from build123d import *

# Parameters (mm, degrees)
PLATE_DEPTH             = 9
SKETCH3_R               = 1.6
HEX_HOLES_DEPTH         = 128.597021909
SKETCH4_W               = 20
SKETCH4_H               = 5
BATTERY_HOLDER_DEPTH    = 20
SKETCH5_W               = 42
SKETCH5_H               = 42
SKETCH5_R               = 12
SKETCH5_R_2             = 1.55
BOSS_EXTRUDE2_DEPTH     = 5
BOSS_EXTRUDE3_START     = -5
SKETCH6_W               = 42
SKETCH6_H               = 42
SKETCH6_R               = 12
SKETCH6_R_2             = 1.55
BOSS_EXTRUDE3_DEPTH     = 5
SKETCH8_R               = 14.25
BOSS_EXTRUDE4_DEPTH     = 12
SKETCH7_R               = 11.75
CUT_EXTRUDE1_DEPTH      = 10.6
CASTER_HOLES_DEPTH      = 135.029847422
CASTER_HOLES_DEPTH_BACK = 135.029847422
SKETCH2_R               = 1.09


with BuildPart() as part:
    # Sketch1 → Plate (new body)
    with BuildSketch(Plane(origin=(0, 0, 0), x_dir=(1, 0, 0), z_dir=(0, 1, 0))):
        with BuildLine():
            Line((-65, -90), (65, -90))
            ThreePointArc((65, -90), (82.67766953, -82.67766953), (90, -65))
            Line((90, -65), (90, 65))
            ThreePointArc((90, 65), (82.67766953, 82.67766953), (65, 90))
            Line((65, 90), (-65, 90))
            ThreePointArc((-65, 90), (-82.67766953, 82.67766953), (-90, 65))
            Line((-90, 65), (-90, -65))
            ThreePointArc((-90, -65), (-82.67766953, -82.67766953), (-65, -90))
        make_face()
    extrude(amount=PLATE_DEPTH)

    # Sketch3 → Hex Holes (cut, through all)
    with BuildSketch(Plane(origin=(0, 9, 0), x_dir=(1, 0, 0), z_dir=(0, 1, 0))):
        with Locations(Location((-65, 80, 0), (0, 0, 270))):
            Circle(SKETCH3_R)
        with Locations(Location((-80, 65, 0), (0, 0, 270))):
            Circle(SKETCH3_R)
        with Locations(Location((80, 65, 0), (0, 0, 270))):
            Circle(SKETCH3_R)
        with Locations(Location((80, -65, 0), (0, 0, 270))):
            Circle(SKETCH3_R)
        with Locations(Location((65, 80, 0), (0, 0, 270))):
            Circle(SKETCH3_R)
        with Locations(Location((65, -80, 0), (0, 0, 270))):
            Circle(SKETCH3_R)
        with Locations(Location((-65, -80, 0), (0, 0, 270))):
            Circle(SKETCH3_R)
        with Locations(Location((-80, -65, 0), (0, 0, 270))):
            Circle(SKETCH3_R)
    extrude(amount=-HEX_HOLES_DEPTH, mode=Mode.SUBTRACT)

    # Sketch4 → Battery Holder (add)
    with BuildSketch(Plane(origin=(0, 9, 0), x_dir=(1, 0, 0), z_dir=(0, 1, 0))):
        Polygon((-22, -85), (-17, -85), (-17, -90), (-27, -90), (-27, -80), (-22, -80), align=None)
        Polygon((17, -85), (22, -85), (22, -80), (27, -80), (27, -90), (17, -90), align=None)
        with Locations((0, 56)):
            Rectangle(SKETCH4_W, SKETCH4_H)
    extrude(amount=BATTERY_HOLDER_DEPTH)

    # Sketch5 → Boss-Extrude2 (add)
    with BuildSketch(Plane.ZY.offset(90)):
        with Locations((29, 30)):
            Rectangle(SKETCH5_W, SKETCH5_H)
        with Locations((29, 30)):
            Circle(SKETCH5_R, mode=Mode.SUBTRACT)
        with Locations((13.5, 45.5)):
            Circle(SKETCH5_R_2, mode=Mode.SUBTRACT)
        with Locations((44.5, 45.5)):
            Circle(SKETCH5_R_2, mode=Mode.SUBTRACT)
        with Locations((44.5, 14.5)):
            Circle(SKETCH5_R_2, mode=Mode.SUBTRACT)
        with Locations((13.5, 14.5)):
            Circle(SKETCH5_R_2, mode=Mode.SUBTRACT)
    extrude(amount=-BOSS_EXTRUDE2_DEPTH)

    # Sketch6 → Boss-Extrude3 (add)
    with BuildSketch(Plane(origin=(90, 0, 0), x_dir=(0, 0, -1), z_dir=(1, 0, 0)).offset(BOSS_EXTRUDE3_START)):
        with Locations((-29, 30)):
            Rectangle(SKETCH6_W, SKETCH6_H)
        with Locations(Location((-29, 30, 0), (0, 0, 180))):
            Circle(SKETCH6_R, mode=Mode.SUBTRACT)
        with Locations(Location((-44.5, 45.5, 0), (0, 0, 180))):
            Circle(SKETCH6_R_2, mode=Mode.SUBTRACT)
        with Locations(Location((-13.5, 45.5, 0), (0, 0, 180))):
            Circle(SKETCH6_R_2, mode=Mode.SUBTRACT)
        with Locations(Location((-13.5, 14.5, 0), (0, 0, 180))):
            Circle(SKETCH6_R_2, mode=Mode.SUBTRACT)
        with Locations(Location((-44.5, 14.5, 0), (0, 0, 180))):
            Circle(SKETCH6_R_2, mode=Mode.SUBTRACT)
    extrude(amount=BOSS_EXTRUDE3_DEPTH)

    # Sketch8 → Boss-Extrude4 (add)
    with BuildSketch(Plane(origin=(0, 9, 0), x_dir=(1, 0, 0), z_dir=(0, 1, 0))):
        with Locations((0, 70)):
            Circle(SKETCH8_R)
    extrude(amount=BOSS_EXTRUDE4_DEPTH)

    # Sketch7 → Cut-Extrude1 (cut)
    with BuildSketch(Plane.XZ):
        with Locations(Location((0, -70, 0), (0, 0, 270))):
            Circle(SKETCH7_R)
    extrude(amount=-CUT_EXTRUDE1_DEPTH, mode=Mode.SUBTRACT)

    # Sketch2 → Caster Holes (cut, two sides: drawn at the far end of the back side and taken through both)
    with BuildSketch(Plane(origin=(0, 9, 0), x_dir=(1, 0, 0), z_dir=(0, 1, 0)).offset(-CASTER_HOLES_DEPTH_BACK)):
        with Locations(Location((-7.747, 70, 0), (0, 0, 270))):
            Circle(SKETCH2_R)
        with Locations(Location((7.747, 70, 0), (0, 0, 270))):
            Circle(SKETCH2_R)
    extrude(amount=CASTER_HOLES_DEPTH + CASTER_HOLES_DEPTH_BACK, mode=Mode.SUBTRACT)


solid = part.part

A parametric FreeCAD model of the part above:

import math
import FreeCAD as App
import Part
import Sketcher
Q = App.Units.Quantity


def add_polygon(sketch, points):
    """Adds a closed chain of lines whose ends are joined by coincident constraints."""
    first, n = sketch.GeometryCount, len(points)
    for a, b in zip(points, points[1:] + points[:1]):
        sketch.addGeometry(Part.LineSegment(App.Vector(*a, 0), App.Vector(*b, 0)), False)
    for i in range(n):
        sketch.addConstraint(Sketcher.Constraint("Coincident", first + i, 2, first + (i + 1) % n, 1))

doc = App.newDocument("Part")
body = doc.addObject("PartDesign::Body", "Body")

# Sketch on XZ plane
sketch1 = body.newObject("Sketcher::SketchObject", "Sketch")
sketch1.AttachmentSupport = (doc.getObject("XZ_Plane"), [""])
sketch1.MapMode = "FlatFace"
sketch1.addGeometry(Part.LineSegment(App.Vector(-65, 90, 0), App.Vector(65, 90, 0)), False)
sketch1.addGeometry(Part.ArcOfCircle(Part.Circle(App.Vector(65, 65, 0), App.Vector(0, 0, 1), 25), math.radians(0), math.radians(90)), False)
sketch1.addGeometry(Part.LineSegment(App.Vector(90, 65, 0), App.Vector(90, -65, 0)), False)
sketch1.addGeometry(Part.ArcOfCircle(Part.Circle(App.Vector(65, -65, 0), App.Vector(0, 0, 1), 25), math.radians(-90), math.radians(0)), False)
sketch1.addGeometry(Part.LineSegment(App.Vector(65, -90, 0), App.Vector(-65, -90, 0)), False)
sketch1.addGeometry(Part.ArcOfCircle(Part.Circle(App.Vector(-65, -65, 0), App.Vector(0, 0, 1), 25), math.radians(180), math.radians(270)), False)
sketch1.addGeometry(Part.LineSegment(App.Vector(-90, -65, 0), App.Vector(-90, 65, 0)), False)
sketch1.addGeometry(Part.ArcOfCircle(Part.Circle(App.Vector(-65, 65, 0), App.Vector(0, 0, 1), 25), math.radians(90), math.radians(180)), False)
sketch1.addConstraint(Sketcher.Constraint("Tangent", 0, 2, 1, 2))
sketch1.addConstraint(Sketcher.Constraint("Tangent", 1, 1, 2, 1))
sketch1.addConstraint(Sketcher.Constraint("Tangent", 2, 2, 3, 2))
sketch1.addConstraint(Sketcher.Constraint("Tangent", 3, 1, 4, 1))
sketch1.addConstraint(Sketcher.Constraint("Tangent", 4, 2, 5, 2))
sketch1.addConstraint(Sketcher.Constraint("Tangent", 5, 1, 6, 1))
sketch1.addConstraint(Sketcher.Constraint("Tangent", 6, 2, 7, 2))
sketch1.addConstraint(Sketcher.Constraint("Tangent", 7, 1, 0, 1))
sketch1.addConstraint(Sketcher.Constraint("Horizontal", 0))
sketch1.addConstraint(Sketcher.Constraint("Vertical", 2))
sketch1.addConstraint(Sketcher.Constraint("Horizontal", 4))
sketch1.addConstraint(Sketcher.Constraint("Vertical", 6))
sketch1.addConstraint(Sketcher.Constraint("Equal", 1, 3))
sketch1.addConstraint(Sketcher.Constraint("Equal", 3, 5))
sketch1.addConstraint(Sketcher.Constraint("Equal", 5, 7))
sketch1.addConstraint(Sketcher.Constraint("Symmetric", 1, 3, 5, 3, -1, 1))
sketch1.addConstraint(Sketcher.Constraint("Equal", 4, 2))
sketch1.addConstraint(Sketcher.Constraint("Radius", 1, Q("25 mm")))
sketch1.addConstraint(Sketcher.Constraint("DistanceX", 0, 1, 0, 2, Q("130 mm")))
pad1 = body.newObject("PartDesign::Pad", "Pad")
pad1.Profile = sketch1
pad1.Length = 9
pad1.Reversed = True

# Sketch on XZ plane
sketch2 = body.newObject("Sketcher::SketchObject", "Sketch001")
sketch2.AttachmentSupport = (doc.getObject("XZ_Plane"), [""])
sketch2.MapMode = "FlatFace"
sketch2.AttachmentOffset = App.Placement(App.Vector(0, 0, -9), App.Rotation())
sketch2.addGeometry(Part.Circle(App.Vector(-65, -80, 0), App.Vector(0, 0, 1), 1.6), False)
sketch2.addGeometry(Part.Circle(App.Vector(-80, -65, 0), App.Vector(0, 0, 1), 1.6), False)
sketch2.addGeometry(Part.Circle(App.Vector(80, -65, 0), App.Vector(0, 0, 1), 1.6), False)
sketch2.addGeometry(Part.Circle(App.Vector(80, 65, 0), App.Vector(0, 0, 1), 1.6), False)
sketch2.addGeometry(Part.Circle(App.Vector(65, -80, 0), App.Vector(0, 0, 1), 1.6), False)
sketch2.addGeometry(Part.Circle(App.Vector(65, 80, 0), App.Vector(0, 0, 1), 1.6), False)
sketch2.addGeometry(Part.Circle(App.Vector(-65, 80, 0), App.Vector(0, 0, 1), 1.6), False)
sketch2.addGeometry(Part.Circle(App.Vector(-80, 65, 0), App.Vector(0, 0, 1), 1.6), False)
sketch2.addConstraint(Sketcher.Constraint("Equal", 0, 1))
sketch2.addConstraint(Sketcher.Constraint("Equal", 1, 2))
sketch2.addConstraint(Sketcher.Constraint("Equal", 2, 3))
sketch2.addConstraint(Sketcher.Constraint("Equal", 3, 4))
sketch2.addConstraint(Sketcher.Constraint("Equal", 4, 5))
sketch2.addConstraint(Sketcher.Constraint("Equal", 5, 6))
sketch2.addConstraint(Sketcher.Constraint("Equal", 6, 7))
sketch2.addConstraint(Sketcher.Constraint("Symmetric", 1, 3, 3, 3, -1, 1))
sketch2.addConstraint(Sketcher.Constraint("Symmetric", 0, 3, 5, 3, -1, 1))
sketch2.addConstraint(Sketcher.Constraint("Symmetric", 4, 3, 6, 3, -1, 1))
sketch2.addConstraint(Sketcher.Constraint("Symmetric", 2, 3, 7, 3, -1, 1))
sketch2.addConstraint(Sketcher.Constraint("Symmetric", 1, 3, 2, 3, -2))
sketch2.addConstraint(Sketcher.Constraint("Symmetric", 0, 3, 4, 3, -2))
sketch2.addConstraint(Sketcher.Constraint("Diameter", 0, Q("3.2 mm")))
sketch2.addConstraint(Sketcher.Constraint("DistanceX", 0, 3, -1, 1, Q("65 mm")))
sketch2.addConstraint(Sketcher.Constraint("DistanceY", 0, 3, -1, 1, Q("80 mm")))
sketch2.addConstraint(Sketcher.Constraint("DistanceX", 1, 3, -1, 1, Q("80 mm")))
sketch2.addConstraint(Sketcher.Constraint("DistanceY", 1, 3, -1, 1, Q("65 mm")))
pocket1 = body.newObject("PartDesign::Pocket", "Pocket")
pocket1.Profile = sketch2
pocket1.Type = "ThroughAll"
pocket1.Reversed = True

# Sketch on XZ plane
sketch3 = body.newObject("Sketcher::SketchObject", "Sketch002")
sketch3.AttachmentSupport = (doc.getObject("XZ_Plane"), [""])
sketch3.MapMode = "FlatFace"
sketch3.AttachmentOffset = App.Placement(App.Vector(0, 0, -9), App.Rotation())
add_polygon(sketch3, [(-17, 85), (-22, 85), (-22, 80), (-27, 80), (-27, 90), (-17, 90)])  # lines 0-5
add_polygon(sketch3, [(22, 85), (17, 85), (17, 90), (27, 90), (27, 80), (22, 80)])  # lines 6-11
add_polygon(sketch3, [(-10, -58), (-10, -54), (10, -54), (10, -58)])  # lines 12-15
sketch3.addConstraint(Sketcher.Constraint("Horizontal", 0))
sketch3.addConstraint(Sketcher.Constraint("Vertical", 1))
sketch3.addConstraint(Sketcher.Constraint("Horizontal", 2))
sketch3.addConstraint(Sketcher.Constraint("Vertical", 3))
sketch3.addConstraint(Sketcher.Constraint("Horizontal", 4))
sketch3.addConstraint(Sketcher.Constraint("Vertical", 5))
sketch3.addConstraint(Sketcher.Constraint("Horizontal", 6))
sketch3.addConstraint(Sketcher.Constraint("Vertical", 7))
sketch3.addConstraint(Sketcher.Constraint("Horizontal", 8))
sketch3.addConstraint(Sketcher.Constraint("Vertical", 9))
sketch3.addConstraint(Sketcher.Constraint("Horizontal", 10))
sketch3.addConstraint(Sketcher.Constraint("Vertical", 11))
sketch3.addConstraint(Sketcher.Constraint("Vertical", 12))
sketch3.addConstraint(Sketcher.Constraint("Horizontal", 13))
sketch3.addConstraint(Sketcher.Constraint("Vertical", 14))
sketch3.addConstraint(Sketcher.Constraint("Horizontal", 15))
sketch3.addConstraint(Sketcher.Constraint("Symmetric", 5, 2, 6, 2, -2))
sketch3.addConstraint(Sketcher.Constraint("Symmetric", 3, 2, 8, 2, -2))
sketch3.addConstraint(Sketcher.Constraint("Symmetric", 1, 2, 10, 2, -2))
sketch3.addConstraint(Sketcher.Constraint("Equal", 0, 2))
sketch3.addConstraint(Sketcher.Constraint("Equal", 10, 1))
sketch3.addConstraint(Sketcher.Constraint("Equal", 8, 3))
sketch3.addConstraint(Sketcher.Constraint("Equal", 11, 12))
sketch3.addConstraint(Sketcher.Constraint("DistanceX", 0, 2, 0, 1, Q("5 mm")))
sketch3.addConstraint(Sketcher.Constraint("DistanceX", 13, 1, 13, 2, Q("20 mm")))
sketch3.addConstraint(Sketcher.Constraint("DistanceX", 0, 2, -1, 1, Q("22 mm")))
sketch3.addConstraint(Sketcher.Constraint("DistanceY", -1, 1, 0, 2, Q("85 mm")))
sketch3.addConstraint(Sketcher.Constraint("DistanceX", 12, 2, -1, 1, Q("10 mm")))
sketch3.addConstraint(Sketcher.Constraint("DistanceY", 12, 2, -1, 1, Q("53.5 mm")))
pad2 = body.newObject("PartDesign::Pad", "Pad001")
pad2.Profile = sketch3
pad2.Length = 20
pad2.Reversed = True

# Sketch on YZ plane
sketch4 = body.newObject("Sketcher::SketchObject", "Sketch003")
sketch4.AttachmentSupport = (doc.getObject("YZ_Plane"), [""])
sketch4.MapMode = "FlatFace"
sketch4.AttachmentOffset = App.Placement(App.Vector(0, 0, -90), App.Rotation())
add_polygon(sketch4, [(51, 8), (9, 8), (9, 50), (51, 50)])  # lines 0-3
sketch4.addGeometry(Part.Circle(App.Vector(14.5, 13.5, 0), App.Vector(0, 0, 1), 1.6), False)  # 4
sketch4.addGeometry(Part.Circle(App.Vector(14.5, 44.5, 0), App.Vector(0, 0, 1), 1.6), False)  # 5
sketch4.addGeometry(Part.Circle(App.Vector(45.5, 13.5, 0), App.Vector(0, 0, 1), 1.6), False)  # 6
sketch4.addGeometry(Part.Circle(App.Vector(30, 29, 0), App.Vector(0, 0, 1), 12), False)  # 7
sketch4.addGeometry(Part.Circle(App.Vector(45.5, 44.5, 0), App.Vector(0, 0, 1), 1.6), False)  # 8
sketch4.addConstraint(Sketcher.Constraint("Horizontal", 0))
sketch4.addConstraint(Sketcher.Constraint("Vertical", 1))
sketch4.addConstraint(Sketcher.Constraint("Horizontal", 2))
sketch4.addConstraint(Sketcher.Constraint("Vertical", 3))
sketch4.addConstraint(Sketcher.Constraint("Equal", 4, 5))
sketch4.addConstraint(Sketcher.Constraint("Equal", 5, 6))
sketch4.addConstraint(Sketcher.Constraint("Equal", 6, 8))
sketch4.addConstraint(Sketcher.Constraint("Horizontal", 4, 3, 6, 3))
sketch4.addConstraint(Sketcher.Constraint("Horizontal", 5, 3, 8, 3))
sketch4.addConstraint(Sketcher.Constraint("Vertical", 4, 3, 5, 3))
sketch4.addConstraint(Sketcher.Constraint("Vertical", 6, 3, 8, 3))
sketch4.addConstraint(Sketcher.Constraint("Equal", 2, 1))
sketch4.addConstraint(Sketcher.Constraint("Diameter", 7, Q("24 mm")))
sketch4.addConstraint(Sketcher.Constraint("Diameter", 4, Q("3.1 mm")))
sketch4.addConstraint(Sketcher.Constraint("DistanceX", 0, 2, 0, 1, Q("42 mm")))
sketch4.addConstraint(Sketcher.Constraint("DistanceX", -1, 1, 7, 3, Q("30 mm")))
sketch4.addConstraint(Sketcher.Constraint("DistanceY", -1, 1, 7, 3, Q("29 mm")))
sketch4.addConstraint(Sketcher.Constraint("DistanceX", -1, 1, 0, 2, Q("9 mm")))
sketch4.addConstraint(Sketcher.Constraint("DistanceY", -1, 1, 0, 2, Q("8 mm")))
sketch4.addConstraint(Sketcher.Constraint("DistanceY", 4, 3, 5, 3, Q("31 mm")))
sketch4.addConstraint(Sketcher.Constraint("DistanceX", 4, 3, 6, 3, Q("31 mm")))
sketch4.addConstraint(Sketcher.Constraint("DistanceX", -1, 1, 4, 3, Q("14.5 mm")))
sketch4.addConstraint(Sketcher.Constraint("DistanceY", -1, 1, 4, 3, Q("13.5 mm")))
pad3 = body.newObject("PartDesign::Pad", "Pad002")
pad3.Profile = sketch4
pad3.Length = 5

# Sketch on YZ plane
sketch5 = body.newObject("Sketcher::SketchObject", "Sketch004")
sketch5.AttachmentSupport = (doc.getObject("YZ_Plane"), [""])
sketch5.MapMode = "FlatFace"
sketch5.AttachmentOffset = App.Placement(App.Vector(0, 0, 85), App.Rotation())
add_polygon(sketch5, [(51, 50), (9, 50), (9, 8), (51, 8)])  # lines 0-3
sketch5.addGeometry(Part.Circle(App.Vector(14.5, 44.5, 0), App.Vector(0, 0, 1), 1.6), False)  # 4
sketch5.addGeometry(Part.Circle(App.Vector(14.5, 13.5, 0), App.Vector(0, 0, 1), 1.6), False)  # 5
sketch5.addGeometry(Part.Circle(App.Vector(45.5, 44.5, 0), App.Vector(0, 0, 1), 1.6), False)  # 6
sketch5.addGeometry(Part.Circle(App.Vector(30, 29, 0), App.Vector(0, 0, 1), 12), False)  # 7
sketch5.addGeometry(Part.Circle(App.Vector(45.5, 13.5, 0), App.Vector(0, 0, 1), 1.6), False)  # 8
sketch5.addConstraint(Sketcher.Constraint("Horizontal", 0))
sketch5.addConstraint(Sketcher.Constraint("Vertical", 1))
sketch5.addConstraint(Sketcher.Constraint("Horizontal", 2))
sketch5.addConstraint(Sketcher.Constraint("Vertical", 3))
sketch5.addConstraint(Sketcher.Constraint("Equal", 4, 5))
sketch5.addConstraint(Sketcher.Constraint("Equal", 5, 6))
sketch5.addConstraint(Sketcher.Constraint("Equal", 6, 8))
sketch5.addConstraint(Sketcher.Constraint("Horizontal", 4, 3, 6, 3))
sketch5.addConstraint(Sketcher.Constraint("Horizontal", 5, 3, 8, 3))
sketch5.addConstraint(Sketcher.Constraint("Vertical", 4, 3, 5, 3))
sketch5.addConstraint(Sketcher.Constraint("Vertical", 6, 3, 8, 3))
sketch5.addConstraint(Sketcher.Constraint("Equal", 2, 1))
sketch5.addConstraint(Sketcher.Constraint("Diameter", 7, Q("24 mm")))
sketch5.addConstraint(Sketcher.Constraint("Diameter", 4, Q("3.1 mm")))
sketch5.addConstraint(Sketcher.Constraint("DistanceX", 0, 2, 0, 1, Q("42 mm")))
sketch5.addConstraint(Sketcher.Constraint("DistanceX", -1, 1, 7, 3, Q("30 mm")))
sketch5.addConstraint(Sketcher.Constraint("DistanceY", -1, 1, 7, 3, Q("29 mm")))
sketch5.addConstraint(Sketcher.Constraint("DistanceX", -1, 1, 0, 2, Q("9 mm")))
sketch5.addConstraint(Sketcher.Constraint("DistanceY", -1, 1, 0, 2, Q("50 mm")))
sketch5.addConstraint(Sketcher.Constraint("DistanceY", 5, 3, 4, 3, Q("31 mm")))
sketch5.addConstraint(Sketcher.Constraint("DistanceX", 4, 3, 6, 3, Q("31 mm")))
sketch5.addConstraint(Sketcher.Constraint("DistanceX", -1, 1, 4, 3, Q("14.5 mm")))
sketch5.addConstraint(Sketcher.Constraint("DistanceY", -1, 1, 4, 3, Q("44.5 mm")))
pad4 = body.newObject("PartDesign::Pad", "Pad003")
pad4.Profile = sketch5
pad4.Length = 5

# Sketch on XZ plane
sketch6 = body.newObject("Sketcher::SketchObject", "Sketch005")
sketch6.AttachmentSupport = (doc.getObject("XZ_Plane"), [""])
sketch6.MapMode = "FlatFace"
sketch6.AttachmentOffset = App.Placement(App.Vector(0, 0, -9), App.Rotation())
sketch6.addGeometry(Part.Circle(App.Vector(0, -70, 0), App.Vector(0, 0, 1), 14), False)
sketch6.addConstraint(Sketcher.Constraint("PointOnObject", 0, 3, -2))
sketch6.addConstraint(Sketcher.Constraint("Diameter", 0, Q("28.5 mm")))
sketch6.addConstraint(Sketcher.Constraint("DistanceY", 0, 3, -1, 1, Q("70 mm")))
pad5 = body.newObject("PartDesign::Pad", "Pad004")
pad5.Profile = sketch6
pad5.Length = 12
pad5.Reversed = True

# Sketch on XZ plane
sketch7 = body.newObject("Sketcher::SketchObject", "Sketch006")
sketch7.AttachmentSupport = (doc.getObject("XZ_Plane"), [""])
sketch7.MapMode = "FlatFace"
sketch7.addGeometry(Part.Circle(App.Vector(0, -70, 0), App.Vector(0, 0, 1), 12), False)
sketch7.addConstraint(Sketcher.Constraint("PointOnObject", 0, 3, -2))
sketch7.addConstraint(Sketcher.Constraint("Diameter", 0, Q("23.5 mm")))
sketch7.addConstraint(Sketcher.Constraint("DistanceY", 0, 3, -1, 1, Q("70 mm")))
pocket2 = body.newObject("PartDesign::Pocket", "Pocket001")
pocket2.Profile = sketch7
pocket2.Length = 10.6

# Sketch on XZ plane
sketch8 = body.newObject("Sketcher::SketchObject", "Sketch007")
sketch8.AttachmentSupport = (doc.getObject("XZ_Plane"), [""])
sketch8.MapMode = "FlatFace"
sketch8.AttachmentOffset = App.Placement(App.Vector(0, 0, -9), App.Rotation())
sketch8.addGeometry(Part.Circle(App.Vector(-7.7, -70, 0), App.Vector(0, 0, 1), 1.1), False)
sketch8.addGeometry(Part.Circle(App.Vector(7.7, -70, 0), App.Vector(0, 0, 1), 1.1), False)
sketch8.addConstraint(Sketcher.Constraint("Equal", 0, 1))
sketch8.addConstraint(Sketcher.Constraint("Symmetric", 0, 3, 1, 3, -2))
sketch8.addConstraint(Sketcher.Constraint("Diameter", 0, Q("2.18 mm")))
sketch8.addConstraint(Sketcher.Constraint("DistanceY", 0, 3, -1, 1, Q("70 mm")))
sketch8.addConstraint(Sketcher.Constraint("DistanceX", 0, 3, -1, 1, Q("7.747 mm")))
pocket3 = body.newObject("PartDesign::Pocket", "Pocket002")
pocket3.Profile = sketch8
pocket3.Type = "ThroughAll"
pocket3.Midplane = True

doc.recompute()
